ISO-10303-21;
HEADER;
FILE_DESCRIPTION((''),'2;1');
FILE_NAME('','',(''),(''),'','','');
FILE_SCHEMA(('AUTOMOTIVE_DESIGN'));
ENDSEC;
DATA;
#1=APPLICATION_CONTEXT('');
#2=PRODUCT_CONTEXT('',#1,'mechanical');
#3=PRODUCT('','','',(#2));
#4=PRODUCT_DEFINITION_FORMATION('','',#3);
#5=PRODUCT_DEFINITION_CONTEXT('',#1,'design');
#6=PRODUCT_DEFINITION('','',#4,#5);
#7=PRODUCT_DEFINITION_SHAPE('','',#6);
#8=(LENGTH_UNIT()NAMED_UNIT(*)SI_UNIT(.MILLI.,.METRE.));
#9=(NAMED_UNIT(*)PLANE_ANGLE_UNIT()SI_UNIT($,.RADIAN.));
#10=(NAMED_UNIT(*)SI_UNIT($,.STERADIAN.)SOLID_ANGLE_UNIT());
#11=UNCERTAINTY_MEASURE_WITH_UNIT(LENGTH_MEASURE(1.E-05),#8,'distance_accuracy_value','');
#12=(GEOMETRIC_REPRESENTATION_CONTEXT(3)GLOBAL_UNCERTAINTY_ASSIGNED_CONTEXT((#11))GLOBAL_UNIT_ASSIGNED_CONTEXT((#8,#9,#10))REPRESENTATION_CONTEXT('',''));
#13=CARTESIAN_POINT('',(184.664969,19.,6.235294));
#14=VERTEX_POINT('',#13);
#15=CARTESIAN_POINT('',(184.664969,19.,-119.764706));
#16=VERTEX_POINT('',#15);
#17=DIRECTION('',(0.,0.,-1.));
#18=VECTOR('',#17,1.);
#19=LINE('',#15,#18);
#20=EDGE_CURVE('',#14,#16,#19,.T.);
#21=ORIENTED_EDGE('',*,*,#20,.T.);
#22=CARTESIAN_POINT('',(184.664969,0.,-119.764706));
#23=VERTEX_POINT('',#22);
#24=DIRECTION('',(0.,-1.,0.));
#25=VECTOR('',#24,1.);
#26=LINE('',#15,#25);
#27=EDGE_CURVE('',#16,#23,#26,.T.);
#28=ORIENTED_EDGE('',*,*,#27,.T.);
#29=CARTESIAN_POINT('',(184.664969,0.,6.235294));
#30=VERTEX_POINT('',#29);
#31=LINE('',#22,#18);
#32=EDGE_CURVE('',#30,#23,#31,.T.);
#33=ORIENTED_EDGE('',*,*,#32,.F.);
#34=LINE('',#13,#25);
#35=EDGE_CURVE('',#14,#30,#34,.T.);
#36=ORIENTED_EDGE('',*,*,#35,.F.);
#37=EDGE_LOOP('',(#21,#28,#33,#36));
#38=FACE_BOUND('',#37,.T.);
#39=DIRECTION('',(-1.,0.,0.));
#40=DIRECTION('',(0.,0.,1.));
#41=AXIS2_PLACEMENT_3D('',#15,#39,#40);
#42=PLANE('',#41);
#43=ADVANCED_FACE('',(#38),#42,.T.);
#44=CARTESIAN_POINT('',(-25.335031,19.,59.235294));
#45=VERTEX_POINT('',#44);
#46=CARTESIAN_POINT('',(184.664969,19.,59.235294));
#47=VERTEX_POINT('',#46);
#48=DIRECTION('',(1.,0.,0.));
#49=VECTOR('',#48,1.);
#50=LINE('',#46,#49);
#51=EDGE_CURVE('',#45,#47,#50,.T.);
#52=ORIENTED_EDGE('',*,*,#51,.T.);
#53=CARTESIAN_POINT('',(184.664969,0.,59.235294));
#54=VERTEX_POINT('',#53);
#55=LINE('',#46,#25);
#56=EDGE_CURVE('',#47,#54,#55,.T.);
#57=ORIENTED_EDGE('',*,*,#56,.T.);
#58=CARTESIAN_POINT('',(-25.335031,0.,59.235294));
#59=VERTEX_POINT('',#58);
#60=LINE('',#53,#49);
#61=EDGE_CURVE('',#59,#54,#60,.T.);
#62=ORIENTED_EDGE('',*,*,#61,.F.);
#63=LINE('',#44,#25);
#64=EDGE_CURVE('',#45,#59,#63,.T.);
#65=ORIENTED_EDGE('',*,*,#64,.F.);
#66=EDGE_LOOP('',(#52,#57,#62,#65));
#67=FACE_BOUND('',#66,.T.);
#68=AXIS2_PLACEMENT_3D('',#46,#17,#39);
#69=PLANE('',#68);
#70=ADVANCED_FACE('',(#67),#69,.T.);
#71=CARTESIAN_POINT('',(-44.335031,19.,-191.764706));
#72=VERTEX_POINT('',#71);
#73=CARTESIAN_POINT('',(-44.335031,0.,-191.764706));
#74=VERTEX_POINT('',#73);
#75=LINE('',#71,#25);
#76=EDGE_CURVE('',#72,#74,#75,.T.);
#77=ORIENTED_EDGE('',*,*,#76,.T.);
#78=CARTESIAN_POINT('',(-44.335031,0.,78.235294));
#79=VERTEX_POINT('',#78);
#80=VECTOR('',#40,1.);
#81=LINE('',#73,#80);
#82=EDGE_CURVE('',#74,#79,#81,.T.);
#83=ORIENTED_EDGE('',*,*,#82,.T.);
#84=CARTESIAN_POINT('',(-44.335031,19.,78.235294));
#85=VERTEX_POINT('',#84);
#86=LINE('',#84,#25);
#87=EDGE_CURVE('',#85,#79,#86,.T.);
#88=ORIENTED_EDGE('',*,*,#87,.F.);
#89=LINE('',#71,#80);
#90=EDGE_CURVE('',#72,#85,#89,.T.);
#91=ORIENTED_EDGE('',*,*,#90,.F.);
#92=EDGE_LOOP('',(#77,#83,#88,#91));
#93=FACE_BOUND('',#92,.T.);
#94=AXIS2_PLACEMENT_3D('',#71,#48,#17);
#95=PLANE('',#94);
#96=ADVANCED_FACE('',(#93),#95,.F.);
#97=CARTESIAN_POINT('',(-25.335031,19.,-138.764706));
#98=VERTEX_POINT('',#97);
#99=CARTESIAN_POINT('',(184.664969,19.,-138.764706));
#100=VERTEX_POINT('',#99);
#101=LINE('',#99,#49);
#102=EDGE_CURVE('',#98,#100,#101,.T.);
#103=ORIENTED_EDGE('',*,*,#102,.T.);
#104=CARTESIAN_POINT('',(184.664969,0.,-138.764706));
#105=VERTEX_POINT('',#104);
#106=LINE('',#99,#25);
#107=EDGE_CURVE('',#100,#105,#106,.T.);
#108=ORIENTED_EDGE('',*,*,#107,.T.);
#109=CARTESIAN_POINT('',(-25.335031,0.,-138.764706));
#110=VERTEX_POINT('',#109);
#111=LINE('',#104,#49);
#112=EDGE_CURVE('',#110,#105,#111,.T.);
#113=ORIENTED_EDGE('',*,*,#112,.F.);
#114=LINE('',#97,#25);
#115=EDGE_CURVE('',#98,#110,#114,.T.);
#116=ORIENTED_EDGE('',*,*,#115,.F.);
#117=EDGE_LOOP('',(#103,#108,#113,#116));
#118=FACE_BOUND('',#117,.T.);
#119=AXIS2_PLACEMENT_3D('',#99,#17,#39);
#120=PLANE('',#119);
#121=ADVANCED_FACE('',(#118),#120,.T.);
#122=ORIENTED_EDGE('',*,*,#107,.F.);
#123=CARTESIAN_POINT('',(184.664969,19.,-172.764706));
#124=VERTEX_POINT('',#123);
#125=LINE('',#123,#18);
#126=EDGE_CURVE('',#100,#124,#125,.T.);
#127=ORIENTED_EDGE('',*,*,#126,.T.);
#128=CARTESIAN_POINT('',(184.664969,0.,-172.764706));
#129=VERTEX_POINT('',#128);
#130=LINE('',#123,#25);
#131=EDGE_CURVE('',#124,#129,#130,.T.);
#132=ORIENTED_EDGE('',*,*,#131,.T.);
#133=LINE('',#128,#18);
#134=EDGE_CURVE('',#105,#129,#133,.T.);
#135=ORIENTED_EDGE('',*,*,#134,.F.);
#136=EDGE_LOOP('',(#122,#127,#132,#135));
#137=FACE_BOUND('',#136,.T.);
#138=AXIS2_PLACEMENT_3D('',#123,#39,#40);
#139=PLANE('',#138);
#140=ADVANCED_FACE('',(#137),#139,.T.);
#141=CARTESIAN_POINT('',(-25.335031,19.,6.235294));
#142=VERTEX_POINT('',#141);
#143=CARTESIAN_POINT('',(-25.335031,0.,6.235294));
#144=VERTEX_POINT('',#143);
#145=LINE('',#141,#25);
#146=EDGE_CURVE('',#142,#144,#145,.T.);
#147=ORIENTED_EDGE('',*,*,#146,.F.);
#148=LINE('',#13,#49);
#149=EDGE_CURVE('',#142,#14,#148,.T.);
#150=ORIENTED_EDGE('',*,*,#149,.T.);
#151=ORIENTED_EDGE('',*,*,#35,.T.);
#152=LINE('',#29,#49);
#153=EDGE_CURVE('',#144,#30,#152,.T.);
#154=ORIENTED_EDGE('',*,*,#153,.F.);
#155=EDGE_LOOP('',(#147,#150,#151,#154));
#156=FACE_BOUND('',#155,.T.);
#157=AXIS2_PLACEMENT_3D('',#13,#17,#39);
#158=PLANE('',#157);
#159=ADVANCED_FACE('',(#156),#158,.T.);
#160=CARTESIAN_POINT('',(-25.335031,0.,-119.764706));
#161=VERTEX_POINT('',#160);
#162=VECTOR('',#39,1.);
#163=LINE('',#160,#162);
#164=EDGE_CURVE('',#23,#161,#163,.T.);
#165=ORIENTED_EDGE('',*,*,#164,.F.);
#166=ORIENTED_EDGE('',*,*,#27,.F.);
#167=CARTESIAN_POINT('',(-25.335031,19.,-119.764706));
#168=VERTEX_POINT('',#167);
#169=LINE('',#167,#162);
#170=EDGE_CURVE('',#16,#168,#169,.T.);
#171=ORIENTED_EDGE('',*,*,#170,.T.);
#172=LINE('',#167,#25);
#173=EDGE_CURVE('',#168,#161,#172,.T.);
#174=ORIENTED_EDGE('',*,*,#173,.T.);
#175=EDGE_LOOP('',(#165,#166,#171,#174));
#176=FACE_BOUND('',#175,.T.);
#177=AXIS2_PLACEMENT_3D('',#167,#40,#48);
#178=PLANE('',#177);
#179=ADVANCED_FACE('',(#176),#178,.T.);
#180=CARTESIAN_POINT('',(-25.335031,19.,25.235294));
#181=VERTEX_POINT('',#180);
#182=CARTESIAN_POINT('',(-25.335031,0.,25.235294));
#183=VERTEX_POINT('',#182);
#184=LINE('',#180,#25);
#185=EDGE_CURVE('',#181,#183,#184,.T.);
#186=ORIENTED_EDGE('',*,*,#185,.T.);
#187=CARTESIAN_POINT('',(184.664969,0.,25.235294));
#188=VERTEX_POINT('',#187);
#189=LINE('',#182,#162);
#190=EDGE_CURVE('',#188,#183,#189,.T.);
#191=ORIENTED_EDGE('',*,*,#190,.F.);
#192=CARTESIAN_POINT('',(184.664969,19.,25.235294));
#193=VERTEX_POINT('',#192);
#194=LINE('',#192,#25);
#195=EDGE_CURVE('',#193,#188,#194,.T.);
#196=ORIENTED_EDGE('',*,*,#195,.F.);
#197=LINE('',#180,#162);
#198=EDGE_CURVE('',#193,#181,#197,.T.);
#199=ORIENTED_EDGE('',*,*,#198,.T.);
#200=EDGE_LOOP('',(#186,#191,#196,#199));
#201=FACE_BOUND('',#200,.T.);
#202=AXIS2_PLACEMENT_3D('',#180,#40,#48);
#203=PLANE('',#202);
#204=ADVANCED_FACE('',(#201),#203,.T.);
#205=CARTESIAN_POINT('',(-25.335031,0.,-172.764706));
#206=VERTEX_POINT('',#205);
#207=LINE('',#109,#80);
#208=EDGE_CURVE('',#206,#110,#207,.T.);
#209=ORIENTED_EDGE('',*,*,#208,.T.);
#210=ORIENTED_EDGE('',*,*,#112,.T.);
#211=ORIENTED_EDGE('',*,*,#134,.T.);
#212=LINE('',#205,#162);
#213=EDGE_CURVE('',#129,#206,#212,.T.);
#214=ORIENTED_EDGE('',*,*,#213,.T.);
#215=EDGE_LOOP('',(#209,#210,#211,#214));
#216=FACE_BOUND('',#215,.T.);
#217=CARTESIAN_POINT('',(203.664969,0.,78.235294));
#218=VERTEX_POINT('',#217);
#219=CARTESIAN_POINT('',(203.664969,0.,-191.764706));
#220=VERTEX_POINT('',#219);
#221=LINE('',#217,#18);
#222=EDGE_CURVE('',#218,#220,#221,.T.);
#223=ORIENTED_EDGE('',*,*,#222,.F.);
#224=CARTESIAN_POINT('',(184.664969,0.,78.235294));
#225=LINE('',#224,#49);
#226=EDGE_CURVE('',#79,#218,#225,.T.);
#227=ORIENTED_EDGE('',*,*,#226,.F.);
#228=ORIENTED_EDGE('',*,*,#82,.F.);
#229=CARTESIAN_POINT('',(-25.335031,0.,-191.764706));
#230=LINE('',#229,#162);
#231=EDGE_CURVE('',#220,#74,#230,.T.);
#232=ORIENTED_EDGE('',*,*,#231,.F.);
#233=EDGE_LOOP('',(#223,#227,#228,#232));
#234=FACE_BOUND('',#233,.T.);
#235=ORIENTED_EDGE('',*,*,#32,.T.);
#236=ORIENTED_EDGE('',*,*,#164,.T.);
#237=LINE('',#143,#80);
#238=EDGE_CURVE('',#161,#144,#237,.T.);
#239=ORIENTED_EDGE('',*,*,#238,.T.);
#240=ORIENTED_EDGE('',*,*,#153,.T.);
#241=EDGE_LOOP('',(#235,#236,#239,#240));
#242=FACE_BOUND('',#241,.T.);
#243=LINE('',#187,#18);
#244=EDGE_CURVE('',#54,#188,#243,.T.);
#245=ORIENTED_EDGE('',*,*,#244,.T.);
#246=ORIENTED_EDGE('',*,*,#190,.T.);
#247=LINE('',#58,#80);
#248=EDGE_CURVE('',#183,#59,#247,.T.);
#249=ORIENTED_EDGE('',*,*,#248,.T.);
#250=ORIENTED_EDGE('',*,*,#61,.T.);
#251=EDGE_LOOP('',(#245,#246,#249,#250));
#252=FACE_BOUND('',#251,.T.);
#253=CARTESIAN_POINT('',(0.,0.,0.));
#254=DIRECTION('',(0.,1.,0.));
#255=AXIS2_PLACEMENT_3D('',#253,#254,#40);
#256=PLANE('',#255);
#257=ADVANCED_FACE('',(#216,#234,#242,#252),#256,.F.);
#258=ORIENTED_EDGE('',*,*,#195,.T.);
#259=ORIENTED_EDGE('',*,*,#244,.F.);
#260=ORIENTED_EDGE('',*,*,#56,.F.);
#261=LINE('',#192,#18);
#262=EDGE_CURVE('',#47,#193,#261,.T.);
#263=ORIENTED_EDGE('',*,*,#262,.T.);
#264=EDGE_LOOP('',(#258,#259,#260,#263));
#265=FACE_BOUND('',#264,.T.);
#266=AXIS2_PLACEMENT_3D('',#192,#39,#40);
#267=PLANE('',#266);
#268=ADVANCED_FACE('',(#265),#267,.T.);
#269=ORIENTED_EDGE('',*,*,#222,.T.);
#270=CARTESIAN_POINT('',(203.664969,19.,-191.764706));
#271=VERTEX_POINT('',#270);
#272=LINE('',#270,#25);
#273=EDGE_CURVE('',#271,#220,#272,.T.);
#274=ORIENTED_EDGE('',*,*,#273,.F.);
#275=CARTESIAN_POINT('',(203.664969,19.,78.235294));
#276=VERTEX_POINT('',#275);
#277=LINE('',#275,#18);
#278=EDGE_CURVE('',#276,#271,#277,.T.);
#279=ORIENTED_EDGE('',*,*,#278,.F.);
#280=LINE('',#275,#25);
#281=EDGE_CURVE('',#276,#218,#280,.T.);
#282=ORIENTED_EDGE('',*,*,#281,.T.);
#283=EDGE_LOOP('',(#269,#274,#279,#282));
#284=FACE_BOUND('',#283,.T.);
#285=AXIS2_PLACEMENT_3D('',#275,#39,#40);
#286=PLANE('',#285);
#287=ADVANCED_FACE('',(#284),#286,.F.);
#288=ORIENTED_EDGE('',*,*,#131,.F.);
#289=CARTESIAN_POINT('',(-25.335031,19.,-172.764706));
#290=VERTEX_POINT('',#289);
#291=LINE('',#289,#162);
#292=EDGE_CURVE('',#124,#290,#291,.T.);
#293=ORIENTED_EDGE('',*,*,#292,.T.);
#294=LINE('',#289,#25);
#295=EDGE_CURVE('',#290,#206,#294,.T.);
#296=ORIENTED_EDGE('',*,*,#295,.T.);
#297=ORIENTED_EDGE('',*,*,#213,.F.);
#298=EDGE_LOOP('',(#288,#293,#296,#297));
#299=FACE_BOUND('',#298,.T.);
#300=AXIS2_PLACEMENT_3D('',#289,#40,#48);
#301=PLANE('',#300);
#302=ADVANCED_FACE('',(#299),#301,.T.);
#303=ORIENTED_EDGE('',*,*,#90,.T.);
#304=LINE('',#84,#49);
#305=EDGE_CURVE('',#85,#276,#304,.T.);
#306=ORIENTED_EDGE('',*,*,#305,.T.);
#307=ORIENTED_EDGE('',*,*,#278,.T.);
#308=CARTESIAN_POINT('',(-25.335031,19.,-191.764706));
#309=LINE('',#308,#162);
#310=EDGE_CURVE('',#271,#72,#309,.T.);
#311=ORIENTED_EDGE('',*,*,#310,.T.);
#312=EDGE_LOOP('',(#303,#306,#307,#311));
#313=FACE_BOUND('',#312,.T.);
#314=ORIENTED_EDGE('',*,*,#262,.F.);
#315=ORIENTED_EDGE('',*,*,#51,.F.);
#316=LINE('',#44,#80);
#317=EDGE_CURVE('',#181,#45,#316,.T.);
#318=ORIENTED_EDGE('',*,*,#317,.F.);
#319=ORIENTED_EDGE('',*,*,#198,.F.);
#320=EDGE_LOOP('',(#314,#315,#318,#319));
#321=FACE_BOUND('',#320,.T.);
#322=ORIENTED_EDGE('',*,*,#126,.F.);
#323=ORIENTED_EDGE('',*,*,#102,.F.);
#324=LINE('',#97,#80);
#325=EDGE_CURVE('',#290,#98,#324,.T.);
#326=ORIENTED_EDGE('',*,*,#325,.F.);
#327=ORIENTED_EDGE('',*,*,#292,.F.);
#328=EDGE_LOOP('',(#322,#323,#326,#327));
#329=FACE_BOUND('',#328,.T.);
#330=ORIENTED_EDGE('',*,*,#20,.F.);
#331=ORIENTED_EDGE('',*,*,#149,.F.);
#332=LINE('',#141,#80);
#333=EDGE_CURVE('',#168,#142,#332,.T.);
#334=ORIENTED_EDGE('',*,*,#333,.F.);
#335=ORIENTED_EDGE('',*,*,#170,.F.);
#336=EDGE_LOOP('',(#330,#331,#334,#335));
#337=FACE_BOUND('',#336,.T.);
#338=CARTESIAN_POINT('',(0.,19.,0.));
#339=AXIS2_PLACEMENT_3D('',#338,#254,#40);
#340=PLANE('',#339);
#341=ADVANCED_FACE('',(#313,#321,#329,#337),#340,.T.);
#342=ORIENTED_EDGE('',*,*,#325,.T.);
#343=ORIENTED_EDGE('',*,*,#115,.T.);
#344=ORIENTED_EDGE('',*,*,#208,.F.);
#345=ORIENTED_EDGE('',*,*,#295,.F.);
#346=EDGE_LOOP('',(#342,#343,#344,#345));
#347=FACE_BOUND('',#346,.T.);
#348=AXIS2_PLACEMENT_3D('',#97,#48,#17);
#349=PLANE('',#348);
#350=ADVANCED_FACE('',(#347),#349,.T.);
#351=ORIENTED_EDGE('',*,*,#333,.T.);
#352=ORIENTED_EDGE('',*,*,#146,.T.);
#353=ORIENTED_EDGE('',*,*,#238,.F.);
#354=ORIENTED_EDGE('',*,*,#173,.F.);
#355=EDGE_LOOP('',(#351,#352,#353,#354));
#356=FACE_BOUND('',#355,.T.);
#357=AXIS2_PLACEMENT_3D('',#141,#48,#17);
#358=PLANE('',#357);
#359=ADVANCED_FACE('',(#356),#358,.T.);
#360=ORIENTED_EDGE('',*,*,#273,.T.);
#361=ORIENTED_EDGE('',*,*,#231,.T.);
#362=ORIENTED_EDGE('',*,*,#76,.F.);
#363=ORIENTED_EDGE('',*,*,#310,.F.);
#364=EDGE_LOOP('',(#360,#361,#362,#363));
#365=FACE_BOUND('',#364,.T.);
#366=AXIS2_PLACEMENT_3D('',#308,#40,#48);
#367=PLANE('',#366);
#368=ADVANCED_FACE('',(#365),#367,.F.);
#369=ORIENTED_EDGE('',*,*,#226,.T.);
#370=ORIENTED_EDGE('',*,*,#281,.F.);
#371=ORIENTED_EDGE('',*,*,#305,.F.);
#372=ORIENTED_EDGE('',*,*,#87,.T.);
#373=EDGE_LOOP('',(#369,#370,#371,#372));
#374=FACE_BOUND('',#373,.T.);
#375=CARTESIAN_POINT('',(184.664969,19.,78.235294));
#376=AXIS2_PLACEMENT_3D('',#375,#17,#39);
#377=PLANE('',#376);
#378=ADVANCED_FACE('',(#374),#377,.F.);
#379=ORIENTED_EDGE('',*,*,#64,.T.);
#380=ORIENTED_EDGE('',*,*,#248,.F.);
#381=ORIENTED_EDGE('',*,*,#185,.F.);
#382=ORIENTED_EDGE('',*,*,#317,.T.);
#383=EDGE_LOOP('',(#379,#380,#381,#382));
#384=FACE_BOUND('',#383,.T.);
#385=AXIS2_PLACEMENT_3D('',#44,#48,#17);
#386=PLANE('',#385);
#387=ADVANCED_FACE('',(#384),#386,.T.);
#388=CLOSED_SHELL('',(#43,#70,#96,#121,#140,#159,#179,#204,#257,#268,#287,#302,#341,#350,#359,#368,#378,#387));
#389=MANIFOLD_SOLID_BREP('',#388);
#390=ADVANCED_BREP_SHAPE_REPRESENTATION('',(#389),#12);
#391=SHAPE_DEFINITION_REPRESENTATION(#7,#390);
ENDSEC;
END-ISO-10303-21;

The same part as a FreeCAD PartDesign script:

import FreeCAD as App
import Part
import Sketcher
from FreeCAD import Vector


def add_polygon(sketch, points):
    """Adds a closed chain of lines whose ends are joined by coincident constraints."""
    first, n = sketch.GeometryCount, len(points)
    for a, b in zip(points, points[1:] + points[:1]):
        sketch.addGeometry(Part.LineSegment(App.Vector(*a, 0), App.Vector(*b, 0)), False)
    for i in range(n):
        sketch.addConstraint(Sketcher.Constraint("Coincident", first + i, 2, first + (i + 1) % n, 1))

doc = App.newDocument("Part")
body = doc.addObject("PartDesign::Body", "Body")

# Sketch on XZ plane
sketch1 = body.newObject("Sketcher::SketchObject", "Sketch")
sketch1.AttachmentSupport = (doc.getObject("XZ_Plane"), [""])
sketch1.MapMode = "FlatFace"
add_polygon(sketch1, [(-44, -192), (-44, 78), (204, 78), (204, -192)])  # lines 0-3
add_polygon(sketch1, [(185, 59), (-25, 59), (-25, 25), (185, 25)])  # lines 4-7
add_polygon(sketch1, [(185, 6), (-25, 6), (-25, -120), (185, -120)])  # lines 8-11
add_polygon(sketch1, [(185, -139), (-25, -139), (-25, -173), (185, -173)])  # lines 12-15
sketch1.addConstraint(Sketcher.Constraint("Vertical", 0))
sketch1.addConstraint(Sketcher.Constraint("Horizontal", 1))
sketch1.addConstraint(Sketcher.Constraint("Vertical", 2))
sketch1.addConstraint(Sketcher.Constraint("Horizontal", 3))
sketch1.addConstraint(Sketcher.Constraint("Horizontal", 4))
sketch1.addConstraint(Sketcher.Constraint("Vertical", 5))
sketch1.addConstraint(Sketcher.Constraint("Horizontal", 6))
sketch1.addConstraint(Sketcher.Constraint("Vertical", 7))
sketch1.addConstraint(Sketcher.Constraint("Horizontal", 8))
sketch1.addConstraint(Sketcher.Constraint("Vertical", 9))
sketch1.addConstraint(Sketcher.Constraint("Horizontal", 10))
sketch1.addConstraint(Sketcher.Constraint("Vertical", 11))
sketch1.addConstraint(Sketcher.Constraint("Horizontal", 12))
sketch1.addConstraint(Sketcher.Constraint("Vertical", 13))
sketch1.addConstraint(Sketcher.Constraint("Horizontal", 14))
sketch1.addConstraint(Sketcher.Constraint("Vertical", 15))
sketch1.addConstraint(Sketcher.Constraint("Vertical", 5, 2, 8, 2))
sketch1.addConstraint(Sketcher.Constraint("Vertical", 7, 2, 10, 2))
sketch1.addConstraint(Sketcher.Constraint("Vertical", 9, 2, 12, 2))
sketch1.addConstraint(Sketcher.Constraint("Vertical", 11, 2, 14, 2))
sketch1.addConstraint(Sketcher.Constraint("Equal", 7, 13))
sketch1.addConstraint(Sketcher.Constraint("DistanceX", 1, 1, 1, 2, 248.0))
sketch1.addConstraint(Sketcher.Constraint("DistanceX", 4, 2, 4, 1, 210.0))
sketch1.addConstraint(Sketcher.Constraint("DistanceY", 0, 1, 0, 2, 270.0))
sketch1.addConstraint(Sketcher.Constraint("DistanceY", 5, 2, 5, 1, 34.0))
sketch1.addConstraint(Sketcher.Constraint("DistanceY", 9, 2, 9, 1, 126.0))
sketch1.addConstraint(Sketcher.Constraint("DistanceX", 0, 2, 4, 2, 19.0))
sketch1.addConstraint(Sketcher.Constraint("DistanceY", 4, 2, 0, 2, 19.0))
sketch1.addConstraint(Sketcher.Constraint("DistanceY", 8, 2, 5, 2, 19.0))
sketch1.addConstraint(Sketcher.Constraint("DistanceY", 12, 2, 9, 2, 19.0))
sketch1.addConstraint(Sketcher.Constraint("DistanceX", 0, 2, -1, 1, 44.335031))
sketch1.addConstraint(Sketcher.Constraint("DistanceY", -1, 1, 0, 2, 78.235294))
pad1 = body.newObject("PartDesign::Pad", "Pad")
pad1.Profile = sketch1
pad1.Length = 19
pad1.Reversed = True

doc.recompute()
